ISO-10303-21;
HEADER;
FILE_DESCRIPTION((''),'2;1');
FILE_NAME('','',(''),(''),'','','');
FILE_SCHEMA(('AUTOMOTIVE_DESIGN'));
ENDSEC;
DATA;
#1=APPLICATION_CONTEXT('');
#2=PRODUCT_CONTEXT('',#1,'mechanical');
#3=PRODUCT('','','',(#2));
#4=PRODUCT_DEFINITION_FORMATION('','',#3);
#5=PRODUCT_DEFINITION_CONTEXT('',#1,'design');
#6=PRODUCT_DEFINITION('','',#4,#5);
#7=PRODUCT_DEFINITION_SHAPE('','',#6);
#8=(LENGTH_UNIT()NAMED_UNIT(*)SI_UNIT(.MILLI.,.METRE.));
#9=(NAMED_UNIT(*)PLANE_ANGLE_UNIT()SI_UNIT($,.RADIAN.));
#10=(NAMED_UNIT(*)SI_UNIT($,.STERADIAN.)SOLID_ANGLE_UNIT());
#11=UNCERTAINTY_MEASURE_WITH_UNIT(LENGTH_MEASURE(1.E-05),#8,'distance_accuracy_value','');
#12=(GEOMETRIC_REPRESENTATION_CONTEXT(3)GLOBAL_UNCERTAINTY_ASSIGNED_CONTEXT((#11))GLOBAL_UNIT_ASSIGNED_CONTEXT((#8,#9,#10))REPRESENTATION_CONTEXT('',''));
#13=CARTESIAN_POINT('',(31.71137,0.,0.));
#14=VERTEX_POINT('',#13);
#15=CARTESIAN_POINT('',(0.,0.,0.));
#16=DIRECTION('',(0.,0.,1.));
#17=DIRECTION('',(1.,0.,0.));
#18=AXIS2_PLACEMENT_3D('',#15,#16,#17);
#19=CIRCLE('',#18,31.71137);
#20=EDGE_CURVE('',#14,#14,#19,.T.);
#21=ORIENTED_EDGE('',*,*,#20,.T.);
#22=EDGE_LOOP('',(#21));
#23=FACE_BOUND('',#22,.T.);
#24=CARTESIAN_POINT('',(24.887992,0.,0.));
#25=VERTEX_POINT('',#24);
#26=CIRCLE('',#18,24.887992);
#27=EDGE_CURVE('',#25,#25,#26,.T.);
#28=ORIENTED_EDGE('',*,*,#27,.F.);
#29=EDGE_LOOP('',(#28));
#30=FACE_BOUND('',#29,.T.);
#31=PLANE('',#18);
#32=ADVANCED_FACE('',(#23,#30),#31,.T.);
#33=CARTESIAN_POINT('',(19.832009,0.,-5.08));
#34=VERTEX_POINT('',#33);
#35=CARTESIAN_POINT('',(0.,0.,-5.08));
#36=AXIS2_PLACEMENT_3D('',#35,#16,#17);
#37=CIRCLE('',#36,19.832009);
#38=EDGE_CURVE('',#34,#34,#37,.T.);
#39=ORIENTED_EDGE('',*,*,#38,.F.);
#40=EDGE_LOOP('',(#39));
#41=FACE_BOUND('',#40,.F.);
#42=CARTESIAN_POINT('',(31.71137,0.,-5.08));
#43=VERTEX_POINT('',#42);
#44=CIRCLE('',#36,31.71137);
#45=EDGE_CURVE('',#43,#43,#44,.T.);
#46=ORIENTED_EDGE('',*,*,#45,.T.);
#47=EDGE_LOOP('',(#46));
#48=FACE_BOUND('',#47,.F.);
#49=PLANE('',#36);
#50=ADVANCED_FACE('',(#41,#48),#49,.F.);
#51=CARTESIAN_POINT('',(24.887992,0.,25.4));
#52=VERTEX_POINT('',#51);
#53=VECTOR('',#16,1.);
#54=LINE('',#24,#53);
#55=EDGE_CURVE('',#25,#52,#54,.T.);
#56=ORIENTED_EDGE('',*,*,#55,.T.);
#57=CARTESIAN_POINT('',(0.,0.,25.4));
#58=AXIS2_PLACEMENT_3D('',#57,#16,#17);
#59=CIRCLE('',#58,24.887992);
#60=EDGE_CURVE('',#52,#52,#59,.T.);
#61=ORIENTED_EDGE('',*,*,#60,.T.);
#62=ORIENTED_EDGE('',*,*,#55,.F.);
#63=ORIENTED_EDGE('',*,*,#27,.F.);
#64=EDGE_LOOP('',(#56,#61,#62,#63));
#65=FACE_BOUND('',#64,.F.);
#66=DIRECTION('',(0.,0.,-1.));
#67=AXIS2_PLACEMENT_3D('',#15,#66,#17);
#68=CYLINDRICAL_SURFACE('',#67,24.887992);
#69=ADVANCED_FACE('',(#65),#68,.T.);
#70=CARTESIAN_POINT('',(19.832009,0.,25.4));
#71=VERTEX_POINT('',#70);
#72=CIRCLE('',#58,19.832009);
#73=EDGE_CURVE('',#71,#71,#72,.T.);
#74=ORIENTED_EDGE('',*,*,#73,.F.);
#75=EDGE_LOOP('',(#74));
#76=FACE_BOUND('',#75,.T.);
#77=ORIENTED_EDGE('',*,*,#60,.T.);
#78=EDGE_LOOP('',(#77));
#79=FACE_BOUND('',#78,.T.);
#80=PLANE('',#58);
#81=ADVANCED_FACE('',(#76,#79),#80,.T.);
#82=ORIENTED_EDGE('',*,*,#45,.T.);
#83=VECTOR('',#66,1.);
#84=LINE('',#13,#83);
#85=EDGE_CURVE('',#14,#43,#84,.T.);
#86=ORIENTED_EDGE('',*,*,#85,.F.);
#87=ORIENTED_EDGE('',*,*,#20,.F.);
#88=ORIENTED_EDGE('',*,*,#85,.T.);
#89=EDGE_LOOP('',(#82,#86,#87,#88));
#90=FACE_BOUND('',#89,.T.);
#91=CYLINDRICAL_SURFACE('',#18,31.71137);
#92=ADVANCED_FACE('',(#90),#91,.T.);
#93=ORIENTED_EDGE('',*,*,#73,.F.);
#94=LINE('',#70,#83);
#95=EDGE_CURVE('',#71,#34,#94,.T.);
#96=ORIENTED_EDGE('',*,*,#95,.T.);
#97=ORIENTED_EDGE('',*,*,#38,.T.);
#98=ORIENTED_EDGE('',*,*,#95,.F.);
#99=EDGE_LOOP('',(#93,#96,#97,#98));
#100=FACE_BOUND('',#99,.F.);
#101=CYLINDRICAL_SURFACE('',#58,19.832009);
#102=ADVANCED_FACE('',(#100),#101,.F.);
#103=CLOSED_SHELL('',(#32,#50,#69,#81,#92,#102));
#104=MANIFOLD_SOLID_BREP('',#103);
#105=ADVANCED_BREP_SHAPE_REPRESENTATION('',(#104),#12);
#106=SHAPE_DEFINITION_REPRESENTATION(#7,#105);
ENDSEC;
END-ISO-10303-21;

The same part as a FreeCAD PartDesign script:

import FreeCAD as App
import Part
import Sketcher
from FreeCAD import Vector
Q = App.Units.Quantity

doc = App.newDocument("Part")
body = doc.addObject("PartDesign::Body", "Body")

# Sketch on XY plane
sketch1 = doc.addObject("Sketcher::SketchObject", "Sketch")
body.addObject(sketch1)
sketch1.AttachmentSupport = (doc.XY_Plane, [""])
sketch1.MapMode = "FlatFace"
sketch1.addGeometry(Part.Circle(Vector(0, 0, 0), Vector(0, 0, 1), 24.887992), False)
sketch1.addConstraint([
    Sketcher.Constraint("Coincident", 0, 3, -1, 1),
    Sketcher.Constraint("Diameter", 0, Q("49.775984 mm")),
])
pad1 = doc.addObject("PartDesign::Pad", "Pad")
body.addObject(pad1)
pad1.Profile = sketch1
pad1.Length = Q("1 in")

# Sketch on XY plane
sketch2 = doc.addObject("Sketcher::SketchObject", "Sketch001")
body.addObject(sketch2)
sketch2.AttachmentSupport = (doc.XY_Plane, [""])
sketch2.MapMode = "FlatFace"
sketch2.addGeometry(Part.Circle(Vector(0, 0, 0), Vector(0, 0, 1), 31.71137), False)
sketch2.addConstraint([
    Sketcher.Constraint("Coincident", 0, 3, -1, 1),
    Sketcher.Constraint("Diameter", 0, Q("63.42274 mm")),
])
pad2 = doc.addObject("PartDesign::Pad", "Pad001")
body.addObject(pad2)
pad2.Profile = sketch2
pad2.Length = Q("0.2 in")
pad2.Reversed = True

# Sketch on XY plane
sketch3 = doc.addObject("Sketcher::SketchObject", "Sketch002")
body.addObject(sketch3)
sketch3.AttachmentSupport = (doc.XY_Plane, [""])
sketch3.MapMode = "FlatFace"
sketch3.AttachmentOffset = App.Placement(Vector(0, 0, 1 * 25.4), App.Rotation())
sketch3.addGeometry(Part.Circle(Vector(0, 0, 0), Vector(0, 0, 1), 19.832009), False)
sketch3.addConstraint([
    Sketcher.Constraint("Coincident", 0, 3, -1, 1),
    Sketcher.Constraint("Diameter", 0, Q("39.664018 mm")),
])
pocket1 = doc.addObject("PartDesign::Pocket", "Pocket")
body.addObject(pocket1)
pocket1.Profile = sketch3
pocket1.Length = Q("1.5 in")

doc.recompute()
